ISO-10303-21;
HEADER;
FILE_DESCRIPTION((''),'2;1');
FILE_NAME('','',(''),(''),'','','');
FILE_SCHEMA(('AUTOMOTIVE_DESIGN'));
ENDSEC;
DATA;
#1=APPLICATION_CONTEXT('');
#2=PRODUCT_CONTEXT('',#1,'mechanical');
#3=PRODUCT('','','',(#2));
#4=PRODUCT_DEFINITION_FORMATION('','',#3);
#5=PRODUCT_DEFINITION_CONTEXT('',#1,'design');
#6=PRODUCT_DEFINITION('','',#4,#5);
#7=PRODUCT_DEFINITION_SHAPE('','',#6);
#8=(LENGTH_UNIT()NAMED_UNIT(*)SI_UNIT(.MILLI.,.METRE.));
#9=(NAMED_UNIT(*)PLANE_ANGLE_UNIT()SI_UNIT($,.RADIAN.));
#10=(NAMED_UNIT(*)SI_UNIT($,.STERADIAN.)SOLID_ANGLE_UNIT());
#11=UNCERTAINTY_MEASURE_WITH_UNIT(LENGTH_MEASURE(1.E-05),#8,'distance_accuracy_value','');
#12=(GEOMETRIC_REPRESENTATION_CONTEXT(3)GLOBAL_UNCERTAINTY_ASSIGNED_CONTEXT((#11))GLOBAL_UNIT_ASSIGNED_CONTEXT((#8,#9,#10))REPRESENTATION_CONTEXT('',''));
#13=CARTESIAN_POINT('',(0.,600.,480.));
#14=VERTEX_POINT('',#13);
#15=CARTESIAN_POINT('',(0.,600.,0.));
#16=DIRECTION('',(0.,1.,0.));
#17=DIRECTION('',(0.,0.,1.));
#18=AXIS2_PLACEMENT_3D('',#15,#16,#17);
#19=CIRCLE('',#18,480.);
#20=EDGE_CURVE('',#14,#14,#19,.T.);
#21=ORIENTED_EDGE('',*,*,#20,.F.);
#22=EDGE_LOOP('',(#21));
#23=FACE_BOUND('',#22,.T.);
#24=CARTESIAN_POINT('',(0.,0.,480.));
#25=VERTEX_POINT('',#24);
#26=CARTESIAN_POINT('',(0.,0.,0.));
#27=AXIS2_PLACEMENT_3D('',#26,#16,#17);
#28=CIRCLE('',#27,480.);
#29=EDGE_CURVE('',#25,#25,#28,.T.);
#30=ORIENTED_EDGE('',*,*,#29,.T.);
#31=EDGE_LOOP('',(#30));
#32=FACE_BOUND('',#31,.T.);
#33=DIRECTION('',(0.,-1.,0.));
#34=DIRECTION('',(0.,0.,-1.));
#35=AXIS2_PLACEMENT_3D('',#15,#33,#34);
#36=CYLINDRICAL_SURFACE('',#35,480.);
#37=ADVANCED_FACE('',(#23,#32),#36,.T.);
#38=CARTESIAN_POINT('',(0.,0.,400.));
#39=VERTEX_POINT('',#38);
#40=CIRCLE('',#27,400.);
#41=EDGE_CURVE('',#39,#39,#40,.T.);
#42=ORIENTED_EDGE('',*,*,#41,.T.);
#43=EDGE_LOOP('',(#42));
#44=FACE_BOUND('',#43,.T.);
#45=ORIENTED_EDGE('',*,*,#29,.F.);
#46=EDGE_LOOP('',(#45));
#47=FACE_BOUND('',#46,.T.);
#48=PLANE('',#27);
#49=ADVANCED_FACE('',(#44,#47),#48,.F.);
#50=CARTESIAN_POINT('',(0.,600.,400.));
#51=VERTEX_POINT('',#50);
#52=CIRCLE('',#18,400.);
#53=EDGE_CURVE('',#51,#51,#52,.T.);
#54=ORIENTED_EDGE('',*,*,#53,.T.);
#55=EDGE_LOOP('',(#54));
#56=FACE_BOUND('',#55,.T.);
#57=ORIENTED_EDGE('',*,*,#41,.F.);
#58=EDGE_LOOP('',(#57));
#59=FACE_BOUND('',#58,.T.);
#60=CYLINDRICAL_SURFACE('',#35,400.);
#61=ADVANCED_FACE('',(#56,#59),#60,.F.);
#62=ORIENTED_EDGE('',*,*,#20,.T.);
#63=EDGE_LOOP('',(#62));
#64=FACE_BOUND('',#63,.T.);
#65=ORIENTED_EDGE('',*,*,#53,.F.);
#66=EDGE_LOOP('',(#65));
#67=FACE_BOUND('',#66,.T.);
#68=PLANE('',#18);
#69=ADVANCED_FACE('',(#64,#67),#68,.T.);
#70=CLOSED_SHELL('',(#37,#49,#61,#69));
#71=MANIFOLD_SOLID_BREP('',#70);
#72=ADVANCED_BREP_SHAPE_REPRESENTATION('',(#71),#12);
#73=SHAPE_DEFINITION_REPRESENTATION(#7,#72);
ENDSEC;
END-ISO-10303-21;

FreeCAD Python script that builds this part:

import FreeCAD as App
import Part
import Sketcher
from FreeCAD import Vector

doc = App.newDocument("Part")
body = doc.addObject("PartDesign::Body", "Body")

# Sketch on XZ plane
sketch1 = body.newObject("Sketcher::SketchObject", "Sketch")
sketch1.AttachmentSupport = (doc.getObject("XZ_Plane"), [""])
sketch1.MapMode = "FlatFace"
sketch1.addGeometry(Part.Circle(Vector(0, 0, 0), Vector(0, 0, 1), 480), False)
sketch1.addGeometry(Part.Circle(Vector(0, 0, 0), Vector(0, 0, 1), 400), False)
sketch1.addConstraint(Sketcher.Constraint("Coincident", 0, 3, -1, 1))
sketch1.addConstraint(Sketcher.Constraint("Coincident", 1, 3, -1, 1))
sketch1.addConstraint(Sketcher.Constraint("Diameter", 0, 960.0))
sketch1.addConstraint(Sketcher.Constraint("Diameter", 1, 800.0))
pad1 = body.newObject("PartDesign::Pad", "Pad")
pad1.Profile = sketch1
pad1.Length = 600
pad1.Reversed = True

doc.recompute()
